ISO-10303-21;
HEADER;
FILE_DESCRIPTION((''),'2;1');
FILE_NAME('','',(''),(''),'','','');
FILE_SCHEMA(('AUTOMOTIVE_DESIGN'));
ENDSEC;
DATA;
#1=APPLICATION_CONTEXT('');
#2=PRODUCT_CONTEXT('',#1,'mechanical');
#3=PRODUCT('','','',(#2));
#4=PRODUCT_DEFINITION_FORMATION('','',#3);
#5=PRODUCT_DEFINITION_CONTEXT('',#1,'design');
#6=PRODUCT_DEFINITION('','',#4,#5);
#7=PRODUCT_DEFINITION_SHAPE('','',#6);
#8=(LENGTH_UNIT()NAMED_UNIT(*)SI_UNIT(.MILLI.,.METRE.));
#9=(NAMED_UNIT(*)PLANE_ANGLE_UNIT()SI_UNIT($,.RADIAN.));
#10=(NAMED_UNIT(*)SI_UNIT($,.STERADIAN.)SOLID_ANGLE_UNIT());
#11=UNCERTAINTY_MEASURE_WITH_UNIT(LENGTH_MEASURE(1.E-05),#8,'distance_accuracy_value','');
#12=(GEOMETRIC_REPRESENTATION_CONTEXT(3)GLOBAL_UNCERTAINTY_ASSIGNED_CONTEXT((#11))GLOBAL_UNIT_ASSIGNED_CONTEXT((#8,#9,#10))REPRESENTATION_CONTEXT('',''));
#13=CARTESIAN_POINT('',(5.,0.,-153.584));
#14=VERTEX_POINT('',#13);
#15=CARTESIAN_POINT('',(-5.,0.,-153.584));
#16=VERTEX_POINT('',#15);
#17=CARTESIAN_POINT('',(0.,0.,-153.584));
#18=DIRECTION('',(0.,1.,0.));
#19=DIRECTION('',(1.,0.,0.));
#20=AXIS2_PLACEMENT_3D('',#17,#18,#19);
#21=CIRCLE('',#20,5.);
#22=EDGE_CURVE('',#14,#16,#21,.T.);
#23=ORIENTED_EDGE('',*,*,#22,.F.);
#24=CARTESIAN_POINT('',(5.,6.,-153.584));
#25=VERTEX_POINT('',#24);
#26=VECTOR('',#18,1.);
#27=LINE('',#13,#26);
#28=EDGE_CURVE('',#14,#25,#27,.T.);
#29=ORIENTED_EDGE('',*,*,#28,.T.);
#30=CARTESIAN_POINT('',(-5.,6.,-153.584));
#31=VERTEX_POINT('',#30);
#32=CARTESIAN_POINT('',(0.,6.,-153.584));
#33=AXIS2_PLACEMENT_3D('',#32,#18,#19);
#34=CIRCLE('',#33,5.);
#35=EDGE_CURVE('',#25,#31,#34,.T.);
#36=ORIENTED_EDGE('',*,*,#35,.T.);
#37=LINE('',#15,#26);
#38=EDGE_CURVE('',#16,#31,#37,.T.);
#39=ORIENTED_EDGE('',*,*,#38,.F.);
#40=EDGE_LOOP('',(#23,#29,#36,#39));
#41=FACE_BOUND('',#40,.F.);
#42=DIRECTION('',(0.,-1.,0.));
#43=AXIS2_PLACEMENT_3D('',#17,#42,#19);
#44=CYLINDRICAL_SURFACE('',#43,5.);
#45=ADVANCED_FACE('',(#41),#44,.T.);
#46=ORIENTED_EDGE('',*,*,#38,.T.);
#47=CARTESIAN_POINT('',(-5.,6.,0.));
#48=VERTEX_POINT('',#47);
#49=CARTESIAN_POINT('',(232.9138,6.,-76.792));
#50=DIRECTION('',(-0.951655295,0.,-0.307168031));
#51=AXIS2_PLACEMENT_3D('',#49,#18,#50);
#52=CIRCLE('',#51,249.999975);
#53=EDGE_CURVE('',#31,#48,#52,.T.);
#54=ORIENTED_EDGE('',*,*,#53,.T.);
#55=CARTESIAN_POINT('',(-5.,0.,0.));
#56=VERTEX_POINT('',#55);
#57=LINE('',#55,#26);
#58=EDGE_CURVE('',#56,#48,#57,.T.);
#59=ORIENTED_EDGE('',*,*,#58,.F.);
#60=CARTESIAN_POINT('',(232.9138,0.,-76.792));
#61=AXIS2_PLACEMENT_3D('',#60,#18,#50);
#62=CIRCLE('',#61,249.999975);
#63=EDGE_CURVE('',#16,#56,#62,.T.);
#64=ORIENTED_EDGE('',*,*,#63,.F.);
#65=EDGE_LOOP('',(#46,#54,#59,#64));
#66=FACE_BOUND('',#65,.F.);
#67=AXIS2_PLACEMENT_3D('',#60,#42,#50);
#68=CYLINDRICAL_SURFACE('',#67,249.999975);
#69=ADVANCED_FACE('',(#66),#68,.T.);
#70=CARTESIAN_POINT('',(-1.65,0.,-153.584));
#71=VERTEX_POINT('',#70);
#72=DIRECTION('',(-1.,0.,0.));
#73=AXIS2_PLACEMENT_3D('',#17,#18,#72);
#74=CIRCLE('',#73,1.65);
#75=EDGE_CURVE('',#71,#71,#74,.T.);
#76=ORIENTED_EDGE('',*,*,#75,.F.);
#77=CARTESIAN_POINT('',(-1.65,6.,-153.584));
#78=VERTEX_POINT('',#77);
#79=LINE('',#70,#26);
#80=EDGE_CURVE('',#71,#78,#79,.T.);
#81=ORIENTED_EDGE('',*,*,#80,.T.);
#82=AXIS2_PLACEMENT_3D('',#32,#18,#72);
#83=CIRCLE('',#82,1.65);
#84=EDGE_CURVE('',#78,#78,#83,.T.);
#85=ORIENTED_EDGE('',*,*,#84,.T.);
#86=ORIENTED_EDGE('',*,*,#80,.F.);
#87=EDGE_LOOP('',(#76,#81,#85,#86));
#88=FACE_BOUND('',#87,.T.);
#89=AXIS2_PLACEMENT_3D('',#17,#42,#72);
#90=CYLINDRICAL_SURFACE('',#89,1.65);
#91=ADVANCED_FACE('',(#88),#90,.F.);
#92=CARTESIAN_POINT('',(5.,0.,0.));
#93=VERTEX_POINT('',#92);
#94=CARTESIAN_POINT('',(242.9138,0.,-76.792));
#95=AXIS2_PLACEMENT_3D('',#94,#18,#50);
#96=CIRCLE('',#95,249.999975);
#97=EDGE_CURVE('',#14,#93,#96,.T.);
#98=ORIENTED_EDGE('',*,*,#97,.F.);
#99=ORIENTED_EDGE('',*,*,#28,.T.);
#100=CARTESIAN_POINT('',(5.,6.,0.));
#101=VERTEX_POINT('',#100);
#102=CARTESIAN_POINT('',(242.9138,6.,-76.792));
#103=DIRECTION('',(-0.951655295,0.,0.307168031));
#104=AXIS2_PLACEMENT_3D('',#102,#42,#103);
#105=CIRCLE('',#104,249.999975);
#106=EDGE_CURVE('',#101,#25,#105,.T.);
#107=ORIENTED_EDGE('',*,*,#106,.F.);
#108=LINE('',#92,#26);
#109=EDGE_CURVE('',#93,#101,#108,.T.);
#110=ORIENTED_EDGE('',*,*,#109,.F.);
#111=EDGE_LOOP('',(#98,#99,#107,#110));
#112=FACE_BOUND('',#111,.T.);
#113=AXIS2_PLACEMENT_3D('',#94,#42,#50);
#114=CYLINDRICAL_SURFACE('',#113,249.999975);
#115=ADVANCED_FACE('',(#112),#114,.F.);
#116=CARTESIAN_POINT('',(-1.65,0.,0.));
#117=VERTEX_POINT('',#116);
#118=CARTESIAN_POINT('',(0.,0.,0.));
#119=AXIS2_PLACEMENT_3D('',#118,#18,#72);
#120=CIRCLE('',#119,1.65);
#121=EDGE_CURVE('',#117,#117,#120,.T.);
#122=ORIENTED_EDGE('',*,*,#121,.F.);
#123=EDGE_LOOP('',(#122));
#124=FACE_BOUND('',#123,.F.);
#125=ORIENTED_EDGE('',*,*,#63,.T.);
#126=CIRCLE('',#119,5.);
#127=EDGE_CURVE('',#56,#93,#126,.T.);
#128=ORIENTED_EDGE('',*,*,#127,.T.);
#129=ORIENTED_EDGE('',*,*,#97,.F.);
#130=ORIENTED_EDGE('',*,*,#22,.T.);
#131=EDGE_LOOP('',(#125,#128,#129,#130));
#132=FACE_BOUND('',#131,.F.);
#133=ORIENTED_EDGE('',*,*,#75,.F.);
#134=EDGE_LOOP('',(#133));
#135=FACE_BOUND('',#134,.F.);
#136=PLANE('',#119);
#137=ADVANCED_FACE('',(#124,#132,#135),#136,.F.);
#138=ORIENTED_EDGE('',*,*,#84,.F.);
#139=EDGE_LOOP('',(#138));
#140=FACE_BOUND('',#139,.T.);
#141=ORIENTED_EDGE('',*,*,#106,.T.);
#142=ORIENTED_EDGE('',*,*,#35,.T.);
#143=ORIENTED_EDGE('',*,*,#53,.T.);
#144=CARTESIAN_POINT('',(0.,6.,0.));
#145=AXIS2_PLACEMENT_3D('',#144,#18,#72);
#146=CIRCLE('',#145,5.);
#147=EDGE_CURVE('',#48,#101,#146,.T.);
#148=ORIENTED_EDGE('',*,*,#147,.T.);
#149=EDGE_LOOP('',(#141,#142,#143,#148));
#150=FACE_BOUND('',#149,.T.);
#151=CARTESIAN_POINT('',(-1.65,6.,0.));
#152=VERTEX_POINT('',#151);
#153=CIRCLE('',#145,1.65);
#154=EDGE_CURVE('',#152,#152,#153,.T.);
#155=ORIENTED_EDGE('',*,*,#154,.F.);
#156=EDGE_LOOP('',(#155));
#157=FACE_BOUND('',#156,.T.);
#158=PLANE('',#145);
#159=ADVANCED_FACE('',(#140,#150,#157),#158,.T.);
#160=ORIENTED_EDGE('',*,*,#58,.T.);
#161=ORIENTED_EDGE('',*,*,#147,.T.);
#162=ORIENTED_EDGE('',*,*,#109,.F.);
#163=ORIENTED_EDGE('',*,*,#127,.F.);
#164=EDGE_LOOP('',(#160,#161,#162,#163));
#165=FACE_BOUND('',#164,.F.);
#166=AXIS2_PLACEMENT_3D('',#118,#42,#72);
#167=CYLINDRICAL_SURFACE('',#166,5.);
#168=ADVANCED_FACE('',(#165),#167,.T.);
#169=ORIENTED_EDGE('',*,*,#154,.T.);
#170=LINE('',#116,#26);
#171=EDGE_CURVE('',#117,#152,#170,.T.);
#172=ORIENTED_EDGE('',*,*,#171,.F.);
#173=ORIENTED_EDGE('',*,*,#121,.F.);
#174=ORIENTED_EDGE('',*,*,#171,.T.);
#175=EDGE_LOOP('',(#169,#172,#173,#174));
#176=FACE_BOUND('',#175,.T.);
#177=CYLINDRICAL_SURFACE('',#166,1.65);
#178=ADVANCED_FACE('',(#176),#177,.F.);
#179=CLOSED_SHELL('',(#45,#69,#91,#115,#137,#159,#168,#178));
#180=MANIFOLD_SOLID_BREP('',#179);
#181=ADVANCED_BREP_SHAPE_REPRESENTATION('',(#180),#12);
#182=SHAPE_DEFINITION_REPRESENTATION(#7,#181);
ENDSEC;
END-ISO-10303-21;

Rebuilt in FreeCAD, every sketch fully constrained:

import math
import FreeCAD as App
import Part
import Sketcher
from FreeCAD import Vector

doc = App.newDocument("Part")
params = doc.addObject("Spreadsheet::Sheet", "Params")
for row, (alias, value) in enumerate([
    ("sketch1_radius", "250 mm"),
    ("sketch1_radius2", "5 mm"),
    ("sketch1_diameter", "3.3 mm"),
    ("pad1_length", "6 mm"),
], start=1):
    params.set(f"A{row}", alias)
    params.set(f"B{row}", "=" + value)
    params.setAlias(f"B{row}", alias)

body = doc.addObject("PartDesign::Body", "Body")

# Sketch on XZ plane
sketch1 = body.newObject("Sketcher::SketchObject", "Sketch")
sketch1.AttachmentSupport = (doc.getObject("XZ_Plane"), [""])
sketch1.MapMode = "FlatFace"
sketch1.addGeometry([
    Part.ArcOfCircle(Part.Circle(Vector(232.9, -76.8, 0), Vector(0, 0, 1), 250), math.radians(162), math.radians(198)),  # 0
    Part.ArcOfCircle(Part.Circle(Vector(0, 0, 0), Vector(0, 0, 1), 5), math.radians(0), math.radians(180)),  # 1
    Part.ArcOfCircle(Part.Circle(Vector(242.9, -76.8, 0), Vector(0, 0, 1), 250), math.radians(162), math.radians(198)),  # 2
    Part.ArcOfCircle(Part.Circle(Vector(0, -153.6, 0), Vector(0, 0, 1), 5), math.radians(180), math.radians(360)),  # 3
    Part.Circle(Vector(0, -153.6, 0), Vector(0, 0, 1), 1.6),  # 4
    Part.Circle(Vector(0, 0, 0), Vector(0, 0, 1), 1.6),  # 5
], False)
sketch1.addConstraint([
    Sketcher.Constraint("Coincident", 0, 1, 1, 2),
    Sketcher.Constraint("Coincident", 1, 1, 2, 1),
    Sketcher.Constraint("Coincident", 2, 2, 3, 2),
    Sketcher.Constraint("Coincident", 3, 1, 0, 2),
    Sketcher.Constraint("Coincident", 1, 3, -1, 1),
    Sketcher.Constraint("Coincident", 5, 3, -1, 1),
    Sketcher.Constraint("Coincident", 4, 3, 3, 3),
    Sketcher.Constraint("Equal", 0, 2),
    Sketcher.Constraint("Equal", 1, 3),
    Sketcher.Constraint("Equal", 4, 5),
    Sketcher.Constraint("Symmetric", 2, 2, 3, 1, -2),
    Sketcher.Constraint("PointOnObject", 0, 1, -1),
    Sketcher.Constraint("PointOnObject", 1, 1, -1),
    Sketcher.Constraint("Horizontal", 4, 3, 2, 2),
    Sketcher.Constraint("Radius", 0, 250.0),
    Sketcher.Constraint("Radius", 1, 5.0),
    Sketcher.Constraint("Diameter", 4, 3.3),
    Sketcher.Constraint("DistanceY", 3, 3, -1, 1, 153.584),
])
sketch1.setExpression("Constraints[14]", "Params.sketch1_radius")
sketch1.setExpression("Constraints[15]", "Params.sketch1_radius2")
sketch1.setExpression("Constraints[16]", "Params.sketch1_diameter")
pad1 = body.newObject("PartDesign::Pad", "Pad")
pad1.Profile = sketch1
pad1.setExpression("Length", "Params.pad1_length")
pad1.Reversed = True

doc.recompute()
